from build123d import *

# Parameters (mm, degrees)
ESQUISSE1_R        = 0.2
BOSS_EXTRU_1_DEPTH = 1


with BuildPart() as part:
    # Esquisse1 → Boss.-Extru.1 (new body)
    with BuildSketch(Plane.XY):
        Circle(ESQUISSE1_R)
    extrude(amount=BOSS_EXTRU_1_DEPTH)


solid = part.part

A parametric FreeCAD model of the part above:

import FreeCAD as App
import Part
import Sketcher
from FreeCAD import Vector
Q = App.Units.Quantity

doc = App.newDocument("Part")
body = doc.addObject("PartDesign::Body", "Body")

# Sketch on XY plane
sketch1 = doc.addObject("Sketcher::SketchObject", "Sketch")
body.addObject(sketch1)
sketch1.AttachmentSupport = (doc.XY_Plane, [""])
sketch1.MapMode = "FlatFace"
sketch1.addGeometry(Part.Circle(Vector(0, 0, 0), Vector(0, 0, 1), 0.2), False)
sketch1.addConstraint(Sketcher.Constraint("Coincident", 0, 3, -1, 1))
sketch1.addConstraint(Sketcher.Constraint("Diameter", 0, Q("0.4 mm")))
pad1 = doc.addObject("PartDesign::Pad", "Pad")
body.addObject(pad1)
pad1.Profile = sketch1
pad1.Length = 1

doc.recompute()
